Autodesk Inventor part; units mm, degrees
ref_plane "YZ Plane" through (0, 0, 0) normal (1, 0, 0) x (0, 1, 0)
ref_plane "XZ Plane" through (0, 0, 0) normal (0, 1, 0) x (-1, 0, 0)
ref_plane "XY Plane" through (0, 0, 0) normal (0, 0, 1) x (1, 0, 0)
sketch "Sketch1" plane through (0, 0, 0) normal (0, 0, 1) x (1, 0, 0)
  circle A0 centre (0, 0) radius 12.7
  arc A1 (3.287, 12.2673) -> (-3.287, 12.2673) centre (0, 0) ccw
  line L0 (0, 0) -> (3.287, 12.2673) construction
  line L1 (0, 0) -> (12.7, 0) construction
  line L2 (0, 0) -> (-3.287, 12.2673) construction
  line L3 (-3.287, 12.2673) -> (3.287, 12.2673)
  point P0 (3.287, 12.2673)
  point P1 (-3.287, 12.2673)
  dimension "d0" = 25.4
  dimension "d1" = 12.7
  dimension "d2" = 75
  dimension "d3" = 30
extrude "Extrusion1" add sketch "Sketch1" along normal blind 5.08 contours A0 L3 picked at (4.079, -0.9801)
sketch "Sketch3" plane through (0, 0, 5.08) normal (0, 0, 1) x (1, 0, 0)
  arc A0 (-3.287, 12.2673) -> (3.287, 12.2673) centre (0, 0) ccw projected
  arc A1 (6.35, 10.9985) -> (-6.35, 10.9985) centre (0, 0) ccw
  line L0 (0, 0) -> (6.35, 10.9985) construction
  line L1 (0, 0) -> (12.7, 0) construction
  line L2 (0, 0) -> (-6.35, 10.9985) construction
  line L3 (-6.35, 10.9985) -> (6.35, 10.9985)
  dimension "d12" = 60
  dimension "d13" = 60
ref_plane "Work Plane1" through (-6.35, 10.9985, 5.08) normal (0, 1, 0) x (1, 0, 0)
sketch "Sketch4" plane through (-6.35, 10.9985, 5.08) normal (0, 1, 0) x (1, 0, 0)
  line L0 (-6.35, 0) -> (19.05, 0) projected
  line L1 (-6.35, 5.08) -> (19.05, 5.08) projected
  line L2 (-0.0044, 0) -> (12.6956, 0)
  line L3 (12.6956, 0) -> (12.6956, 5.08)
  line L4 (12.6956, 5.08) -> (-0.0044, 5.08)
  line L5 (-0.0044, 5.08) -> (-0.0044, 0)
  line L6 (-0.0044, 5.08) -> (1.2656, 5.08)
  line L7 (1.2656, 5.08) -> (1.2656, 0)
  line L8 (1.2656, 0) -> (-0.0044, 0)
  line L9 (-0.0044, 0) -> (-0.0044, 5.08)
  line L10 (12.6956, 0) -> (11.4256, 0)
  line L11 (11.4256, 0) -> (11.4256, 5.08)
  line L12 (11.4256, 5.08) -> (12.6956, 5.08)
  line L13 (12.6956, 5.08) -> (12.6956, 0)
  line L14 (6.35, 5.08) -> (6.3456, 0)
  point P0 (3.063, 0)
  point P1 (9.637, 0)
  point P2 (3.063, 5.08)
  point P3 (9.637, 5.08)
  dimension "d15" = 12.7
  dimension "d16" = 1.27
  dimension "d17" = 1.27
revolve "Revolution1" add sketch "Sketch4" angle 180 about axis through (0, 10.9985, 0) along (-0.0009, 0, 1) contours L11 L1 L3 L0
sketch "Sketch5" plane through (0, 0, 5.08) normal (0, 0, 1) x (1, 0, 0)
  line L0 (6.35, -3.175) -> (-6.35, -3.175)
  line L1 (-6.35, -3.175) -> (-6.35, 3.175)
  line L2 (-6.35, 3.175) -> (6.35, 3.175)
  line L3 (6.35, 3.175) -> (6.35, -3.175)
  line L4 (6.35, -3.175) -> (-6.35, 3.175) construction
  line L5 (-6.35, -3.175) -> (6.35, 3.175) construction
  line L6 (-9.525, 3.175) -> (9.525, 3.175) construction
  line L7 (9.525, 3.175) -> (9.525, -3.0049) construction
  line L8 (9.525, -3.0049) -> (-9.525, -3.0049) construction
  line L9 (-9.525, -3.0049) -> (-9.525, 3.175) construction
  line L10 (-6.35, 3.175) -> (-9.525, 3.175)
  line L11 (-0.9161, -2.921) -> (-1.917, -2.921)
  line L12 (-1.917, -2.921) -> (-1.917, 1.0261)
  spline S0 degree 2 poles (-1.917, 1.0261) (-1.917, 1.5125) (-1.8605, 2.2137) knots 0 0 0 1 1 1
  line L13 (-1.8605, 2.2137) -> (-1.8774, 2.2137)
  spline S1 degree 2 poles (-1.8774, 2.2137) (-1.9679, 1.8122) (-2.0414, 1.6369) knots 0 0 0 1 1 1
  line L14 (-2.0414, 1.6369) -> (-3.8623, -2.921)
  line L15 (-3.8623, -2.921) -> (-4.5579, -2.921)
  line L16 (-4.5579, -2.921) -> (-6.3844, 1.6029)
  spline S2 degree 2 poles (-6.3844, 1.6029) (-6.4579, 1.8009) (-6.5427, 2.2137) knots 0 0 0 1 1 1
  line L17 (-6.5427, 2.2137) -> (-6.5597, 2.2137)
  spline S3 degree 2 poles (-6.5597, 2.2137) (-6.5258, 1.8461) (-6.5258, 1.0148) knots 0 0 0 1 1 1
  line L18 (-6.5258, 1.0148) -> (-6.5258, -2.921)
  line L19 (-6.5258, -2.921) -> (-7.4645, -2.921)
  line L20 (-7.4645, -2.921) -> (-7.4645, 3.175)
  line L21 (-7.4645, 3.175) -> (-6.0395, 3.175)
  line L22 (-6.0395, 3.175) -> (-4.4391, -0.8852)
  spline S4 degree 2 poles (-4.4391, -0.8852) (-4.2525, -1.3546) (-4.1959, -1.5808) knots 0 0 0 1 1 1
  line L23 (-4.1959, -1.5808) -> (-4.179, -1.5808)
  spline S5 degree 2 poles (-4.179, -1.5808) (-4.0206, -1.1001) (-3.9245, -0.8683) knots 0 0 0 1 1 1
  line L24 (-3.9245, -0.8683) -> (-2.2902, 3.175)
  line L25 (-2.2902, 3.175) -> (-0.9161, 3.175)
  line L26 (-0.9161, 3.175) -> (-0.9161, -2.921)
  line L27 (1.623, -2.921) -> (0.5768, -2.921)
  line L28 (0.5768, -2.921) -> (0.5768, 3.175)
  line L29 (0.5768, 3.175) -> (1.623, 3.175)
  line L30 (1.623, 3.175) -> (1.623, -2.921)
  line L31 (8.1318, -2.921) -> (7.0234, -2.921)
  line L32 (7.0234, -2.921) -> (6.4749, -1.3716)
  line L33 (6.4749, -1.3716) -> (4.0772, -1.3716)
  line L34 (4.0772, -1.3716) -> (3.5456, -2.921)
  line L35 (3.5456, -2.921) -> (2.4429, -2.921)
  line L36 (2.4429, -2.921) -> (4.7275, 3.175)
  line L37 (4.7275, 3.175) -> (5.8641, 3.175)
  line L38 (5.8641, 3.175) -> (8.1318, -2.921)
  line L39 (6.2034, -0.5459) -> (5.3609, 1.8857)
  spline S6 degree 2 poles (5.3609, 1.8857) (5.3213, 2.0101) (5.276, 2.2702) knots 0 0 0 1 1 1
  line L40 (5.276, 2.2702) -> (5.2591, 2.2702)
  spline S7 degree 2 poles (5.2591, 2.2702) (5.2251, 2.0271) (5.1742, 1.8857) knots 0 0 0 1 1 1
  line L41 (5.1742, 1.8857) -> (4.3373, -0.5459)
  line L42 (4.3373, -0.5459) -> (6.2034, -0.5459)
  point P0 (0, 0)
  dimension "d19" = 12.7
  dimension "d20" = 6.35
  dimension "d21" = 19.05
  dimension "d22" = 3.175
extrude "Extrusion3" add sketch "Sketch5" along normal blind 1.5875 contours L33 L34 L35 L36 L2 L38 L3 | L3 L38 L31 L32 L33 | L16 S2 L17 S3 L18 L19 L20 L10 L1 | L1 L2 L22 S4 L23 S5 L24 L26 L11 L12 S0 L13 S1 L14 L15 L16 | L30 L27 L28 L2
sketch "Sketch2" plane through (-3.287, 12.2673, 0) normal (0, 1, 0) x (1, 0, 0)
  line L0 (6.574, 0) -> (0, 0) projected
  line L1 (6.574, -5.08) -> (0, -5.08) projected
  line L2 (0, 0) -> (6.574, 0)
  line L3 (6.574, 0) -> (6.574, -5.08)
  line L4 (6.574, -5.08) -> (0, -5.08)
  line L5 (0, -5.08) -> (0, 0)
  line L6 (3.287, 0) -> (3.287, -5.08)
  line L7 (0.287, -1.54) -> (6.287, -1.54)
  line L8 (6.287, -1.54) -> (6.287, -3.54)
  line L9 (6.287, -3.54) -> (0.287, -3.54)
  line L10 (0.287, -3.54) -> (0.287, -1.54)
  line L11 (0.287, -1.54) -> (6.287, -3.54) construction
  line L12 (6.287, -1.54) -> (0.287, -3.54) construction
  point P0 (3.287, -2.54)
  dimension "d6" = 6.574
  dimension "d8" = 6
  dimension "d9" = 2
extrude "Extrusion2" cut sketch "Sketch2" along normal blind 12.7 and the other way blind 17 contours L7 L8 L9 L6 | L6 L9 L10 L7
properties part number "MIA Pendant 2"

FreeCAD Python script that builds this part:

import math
import FreeCAD as App
import Part
import Sketcher
Q = App.Units.Quantity


def add_polygon(sketch, points):
    """Adds a closed chain of lines whose ends are joined by coincident constraints."""
    first, n = sketch.GeometryCount, len(points)
    for a, b in zip(points, points[1:] + points[:1]):
        sketch.addGeometry(Part.LineSegment(App.Vector(*a, 0), App.Vector(*b, 0)), False)
    for i in range(n):
        sketch.addConstraint(Sketcher.Constraint("Coincident", first + i, 2, first + (i + 1) % n, 1))

doc = App.newDocument("Part")
body = doc.addObject("PartDesign::Body", "Body")

sketch1 = body.newObject("Sketcher::SketchObject", "Sketch")
sketch1.AttachmentSupport = (doc.getObject("XY_Plane"), [""])
sketch1.MapMode = "FlatFace"
sketch1.addGeometry(Part.ArcOfCircle(Part.Circle(App.Vector(0, 0, 0), App.Vector(0, 0, 1), 13), math.radians(105), math.radians(435)), False)
sketch1.addGeometry(Part.LineSegment(App.Vector(-3, 12, 0), App.Vector(3, 12, 0)), False)
sketch1.addConstraint(Sketcher.Constraint("Coincident", 0, 1, 1, 1))
sketch1.addConstraint(Sketcher.Constraint("Coincident", 1, 2, 0, 2))
sketch1.addConstraint(Sketcher.Constraint("Horizontal", 1))
sketch1.addConstraint(Sketcher.Constraint("Coincident", 0, 3, -1, 1))
sketch1.addConstraint(Sketcher.Constraint("Radius", 0, Q("0.5 in")))
sketch1.addConstraint(Sketcher.Constraint("DistanceX", 1, 1, 1, 2, Q("6.574 mm")))
pad1 = body.newObject("PartDesign::Pad", "Pad")
pad1.Profile = sketch1
pad1.Length = Q("0.2 in")

sketch2 = body.newObject("Sketcher::SketchObject", "Sketch001")
sketch2.AttachmentSupport = (doc.getObject("XZ_Plane"), [""])
sketch2.MapMode = "FlatFace"
sketch2.AttachmentOffset = App.Placement(App.Vector(0, 0, -0.4330118 * 25.4), App.Rotation())
add_polygon(sketch2, [(5.1, 0), (5.1, 5.1), (6.3, 5.1), (6.3, 0)])
sketch2.addGeometry(Part.LineSegment(App.Vector(0, 0, 0), App.Vector(0, 5.1, 0)), True)
sketch2.addConstraint(Sketcher.Constraint("Vertical", 0))
sketch2.addConstraint(Sketcher.Constraint("Horizontal", 1))
sketch2.addConstraint(Sketcher.Constraint("Vertical", 2))
sketch2.addConstraint(Sketcher.Constraint("Horizontal", 3))
sketch2.addConstraint(Sketcher.Constraint("PointOnObject", 2, 2, -1))
sketch2.addConstraint(Sketcher.Constraint("PointOnObject", 4, 1, -2))
sketch2.addConstraint(Sketcher.Constraint("DistanceX", 1, 1, 1, 2, Q("0.05 in")))
sketch2.addConstraint(Sketcher.Constraint("DistanceY", 0, 1, 0, 2, Q("0.2 in")))
sketch2.addConstraint(Sketcher.Constraint("DistanceX", 4, 2, 0, 2, Q("0.2 in")))
sketch2.addConstraint(Sketcher.Constraint("Distance", 4, Q("5.0811 mm")))
sketch2.addConstraint(Sketcher.Constraint("DistanceX", -1, 1, 0, 2, Q("5.0756 mm")))
sketch2.addConstraint(Sketcher.Constraint("DistanceY", 4, 1, -1, 1, Q("0.0057 mm")))
revolution = body.newObject("PartDesign::Revolution", "Revolution")
revolution.Profile = sketch2
revolution.ReferenceAxis = (sketch2, ["Axis0"])
revolution.Angle = 180

sketch3 = body.newObject("Sketcher::SketchObject", "Sketch002")
sketch3.AttachmentSupport = (doc.getObject("XY_Plane"), [""])
sketch3.MapMode = "FlatFace"
sketch3.AttachmentOffset = App.Placement(App.Vector(0, 0, 0.2 * 25.4), App.Rotation())
add_polygon(sketch3, [(4.0772, -1.3716), (6.4749, -1.3716), (7.0234, -2.921), (8.1318, -2.921), (5.8641, 3.175), (4.7275, 3.175), (2.4429, -2.921), (3.5456, -2.921)])
sketch3.addGeometry(Part.LineSegment(App.Vector(5.3609, 1.8857, 0), App.Vector(6.2034, -0.5459, 0)), False)
sketch3.addGeometry(Part.LineSegment(App.Vector(6.2034, -0.5459, 0), App.Vector(4.3373, -0.5459, 0)), False)
sketch3.addGeometry(Part.LineSegment(App.Vector(4.3373, -0.5459, 0), App.Vector(5.1742, 1.8857, 0)), False)
sketch3.addGeometry(Part.BSplineCurve([App.Vector(5.2591, 2.2702, 0), App.Vector(5.2251, 2.0271, 0), App.Vector(5.1742, 1.8857, 0)], [3, 3], [0, 1], False, 2, [1, 1, 1], False), False)
sketch3.addGeometry(Part.LineSegment(App.Vector(5.2591, 2.2702, 0), App.Vector(5.276, 2.2702, 0)), False)
sketch3.addGeometry(Part.BSplineCurve([App.Vector(5.3609, 1.8857, 0), App.Vector(5.3213, 2.0101, 0), App.Vector(5.276, 2.2702, 0)], [3, 3], [0, 1], False, 2, [1, 1, 1], False), False)
sketch3.addGeometry(Part.LineSegment(App.Vector(-6.3844, 1.6029, 0), App.Vector(-4.5579, -2.921, 0)), False)
sketch3.addGeometry(Part.LineSegment(App.Vector(-4.5579, -2.921, 0), App.Vector(-3.8623, -2.921, 0)), False)
sketch3.addGeometry(Part.LineSegment(App.Vector(-3.8623, -2.921, 0), App.Vector(-2.0414, 1.6369, 0)), False)
sketch3.addGeometry(Part.BSplineCurve([App.Vector(-1.8774, 2.2137, 0), App.Vector(-1.9679, 1.8122, 0), App.Vector(-2.0414, 1.6369, 0)], [3, 3], [0, 1], False, 2, [1, 1, 1], False), False)
sketch3.addGeometry(Part.LineSegment(App.Vector(-1.8774, 2.2137, 0), App.Vector(-1.8605, 2.2137, 0)), False)
sketch3.addGeometry(Part.BSplineCurve([App.Vector(-1.917, 1.0261, 0), App.Vector(-1.917, 1.5125, 0), App.Vector(-1.8605, 2.2137, 0)], [3, 3], [0, 1], False, 2, [1, 1, 1], False), False)
sketch3.addGeometry(Part.LineSegment(App.Vector(-1.917, 1.0261, 0), App.Vector(-1.917, -2.921, 0)), False)
sketch3.addGeometry(Part.LineSegment(App.Vector(-1.917, -2.921, 0), App.Vector(-0.9161, -2.921, 0)), False)
sketch3.addGeometry(Part.LineSegment(App.Vector(-0.9161, -2.921, 0), App.Vector(-0.9161, 3.175, 0)), False)
sketch3.addGeometry(Part.LineSegment(App.Vector(-0.9161, 3.175, 0), App.Vector(-2.2902, 3.175, 0)), False)
sketch3.addGeometry(Part.LineSegment(App.Vector(-2.2902, 3.175, 0), App.Vector(-3.9245, -0.8683, 0)), False)
sketch3.addGeometry(Part.BSplineCurve([App.Vector(-4.179, -1.5808, 0), App.Vector(-4.0206, -1.1001, 0), App.Vector(-3.9245, -0.8683, 0)], [3, 3], [0, 1], False, 2, [1, 1, 1], False), False)
sketch3.addGeometry(Part.LineSegment(App.Vector(-4.179, -1.5808, 0), App.Vector(-4.1959, -1.5808, 0)), False)
sketch3.addGeometry(Part.BSplineCurve([App.Vector(-4.4391, -0.8852, 0), App.Vector(-4.2525, -1.3546, 0), App.Vector(-4.1959, -1.5808, 0)], [3, 3], [0, 1], False, 2, [1, 1, 1], False), False)
sketch3.addGeometry(Part.LineSegment(App.Vector(-4.4391, -0.8852, 0), App.Vector(-6.0395, 3.175, 0)), False)
sketch3.addGeometry(Part.LineSegment(App.Vector(-6.0395, 3.175, 0), App.Vector(-7.4645, 3.175, 0)), False)
sketch3.addGeometry(Part.LineSegment(App.Vector(-7.4645, 3.175, 0), App.Vector(-7.4645, -2.921, 0)), False)
sketch3.addGeometry(Part.LineSegment(App.Vector(-7.4645, -2.921, 0), App.Vector(-6.5258, -2.921, 0)), False)
sketch3.addGeometry(Part.LineSegment(App.Vector(-6.5258, -2.921, 0), App.Vector(-6.5258, 1.0148, 0)), False)
sketch3.addGeometry(Part.BSplineCurve([App.Vector(-6.5597, 2.2137, 0), App.Vector(-6.5258, 1.8461, 0), App.Vector(-6.5258, 1.0148, 0)], [3, 3], [0, 1], False, 2, [1, 1, 1], False), False)
sketch3.addGeometry(Part.LineSegment(App.Vector(-6.5597, 2.2137, 0), App.Vector(-6.5427, 2.2137, 0)), False)
sketch3.addGeometry(Part.BSplineCurve([App.Vector(-6.3844, 1.6029, 0), App.Vector(-6.4579, 1.8009, 0), App.Vector(-6.5427, 2.2137, 0)], [3, 3], [0, 1], False, 2, [1, 1, 1], False), False)
add_polygon(sketch3, [(1.623, -2.921), (1.623, 3.175), (0.5768, 3.175), (0.5768, -2.921)])
sketch3.addConstraint(Sketcher.Constraint("Block", 11))
sketch3.addConstraint(Sketcher.Constraint("Block", 13))
sketch3.addConstraint(Sketcher.Constraint("Block", 17))
sketch3.addConstraint(Sketcher.Constraint("Block", 19))
sketch3.addConstraint(Sketcher.Constraint("Block", 25))
sketch3.addConstraint(Sketcher.Constraint("Block", 27))
sketch3.addConstraint(Sketcher.Constraint("Block", 33))
sketch3.addConstraint(Sketcher.Constraint("Block", 35))
sketch3.addConstraint(Sketcher.Constraint("Coincident", 8, 2, 9, 1))
sketch3.addConstraint(Sketcher.Constraint("Coincident", 9, 2, 10, 1))
sketch3.addConstraint(Sketcher.Constraint("Coincident", 10, 2, 11, 2))
sketch3.addConstraint(Sketcher.Constraint("Coincident", 11, 1, 12, 1))
sketch3.addConstraint(Sketcher.Constraint("Coincident", 12, 2, 13, 2))
sketch3.addConstraint(Sketcher.Constraint("Coincident", 13, 1, 8, 1))
sketch3.addConstraint(Sketcher.Constraint("Coincident", 14, 2, 15, 1))
sketch3.addConstraint(Sketcher.Constraint("Coincident", 15, 2, 16, 1))
sketch3.addConstraint(Sketcher.Constraint("Coincident", 16, 2, 17, 2))
sketch3.addConstraint(Sketcher.Constraint("Coincident", 17, 1, 18, 1))
sketch3.addConstraint(Sketcher.Constraint("Coincident", 18, 2, 19, 2))
sketch3.addConstraint(Sketcher.Constraint("Coincident", 19, 1, 20, 1))
sketch3.addConstraint(Sketcher.Constraint("Coincident", 20, 2, 21, 1))
sketch3.addConstraint(Sketcher.Constraint("Coincident", 21, 2, 22, 1))
sketch3.addConstraint(Sketcher.Constraint("Coincident", 22, 2, 23, 1))
sketch3.addConstraint(Sketcher.Constraint("Coincident", 23, 2, 24, 1))
sketch3.addConstraint(Sketcher.Constraint("Coincident", 24, 2, 25, 2))
sketch3.addConstraint(Sketcher.Constraint("Coincident", 25, 1, 26, 1))
sketch3.addConstraint(Sketcher.Constraint("Coincident", 26, 2, 27, 2))
sketch3.addConstraint(Sketcher.Constraint("Coincident", 27, 1, 28, 1))
sketch3.addConstraint(Sketcher.Constraint("Coincident", 28, 2, 29, 1))
sketch3.addConstraint(Sketcher.Constraint("Coincident", 29, 2, 30, 1))
sketch3.addConstraint(Sketcher.Constraint("Coincident", 30, 2, 31, 1))
sketch3.addConstraint(Sketcher.Constraint("Coincident", 31, 2, 32, 1))
sketch3.addConstraint(Sketcher.Constraint("Coincident", 32, 2, 33, 2))
sketch3.addConstraint(Sketcher.Constraint("Coincident", 33, 1, 34, 1))
sketch3.addConstraint(Sketcher.Constraint("Coincident", 34, 2, 35, 2))
sketch3.addConstraint(Sketcher.Constraint("Coincident", 35, 1, 14, 1))
sketch3.addConstraint(Sketcher.Constraint("Horizontal", 0))
sketch3.addConstraint(Sketcher.Constraint("Horizontal", 2))
sketch3.addConstraint(Sketcher.Constraint("Horizontal", 4))
sketch3.addConstraint(Sketcher.Constraint("Horizontal", 6))
sketch3.addConstraint(Sketcher.Constraint("Horizontal", 9))
sketch3.addConstraint(Sketcher.Constraint("Horizontal", 15))
sketch3.addConstraint(Sketcher.Constraint("Vertical", 20))
sketch3.addConstraint(Sketcher.Constraint("Horizontal", 21))
sketch3.addConstraint(Sketcher.Constraint("Vertical", 22))
sketch3.addConstraint(Sketcher.Constraint("Horizontal", 23))
sketch3.addConstraint(Sketcher.Constraint("Horizontal", 29))
sketch3.addConstraint(Sketcher.Constraint("Vertical", 30))
sketch3.addConstraint(Sketcher.Constraint("Horizontal", 31))
sketch3.addConstraint(Sketcher.Constraint("Vertical", 32))
sketch3.addConstraint(Sketcher.Constraint("Vertical", 36))
sketch3.addConstraint(Sketcher.Constraint("Horizontal", 37))
sketch3.addConstraint(Sketcher.Constraint("Vertical", 38))
sketch3.addConstraint(Sketcher.Constraint("Horizontal", 39))
sketch3.addConstraint(Sketcher.Constraint("DistanceY", -1, 1, 3, 2, Q("0.125 in")))
sketch3.addConstraint(Sketcher.Constraint("DistanceY", -1, 1, 22, 2, Q("0.125 in")))
sketch3.addConstraint(Sketcher.Constraint("DistanceY", -1, 1, 28, 2, Q("0.125 in")))
sketch3.addConstraint(Sketcher.Constraint("DistanceY", -1, 1, 36, 2, Q("0.125 in")))
sketch3.addConstraint(Sketcher.Constraint("DistanceY", 22, 1, 22, 2, Q("0.24 in")))
sketch3.addConstraint(Sketcher.Constraint("DistanceY", 30, 2, 30, 1, Q("0.24 in")))
sketch3.addConstraint(Sketcher.Constraint("DistanceY", 36, 1, 36, 2, Q("0.24 in")))
sketch3.addConstraint(Sketcher.Constraint("DistanceY", 1, 2, 3, 2, Q("0.24 in")))
sketch3.addConstraint(Sketcher.Constraint("DistanceY", 5, 2, 4, 2, Q("0.24 in")))
sketch3.addConstraint(Sketcher.Constraint("DistanceX", 0, 1, 0, 2, Q("0.0944 in")))
sketch3.addConstraint(Sketcher.Constraint("DistanceX", 21, 1, 21, 2, Q("0.0394 in")))
sketch3.addConstraint(Sketcher.Constraint("DistanceX", 23, 2, 23, 1, Q("0.0541 in")))
sketch3.addConstraint(Sketcher.Constraint("DistanceX", 29, 2, 29, 1, Q("0.0561 in")))
sketch3.addConstraint(Sketcher.Constraint("DistanceX", 37, 2, 37, 1, Q("0.0412 in")))
sketch3.addConstraint(Sketcher.Constraint("DistanceY", 0, 2, -1, 1, Q("0.054 in")))
sketch3.addConstraint(Sketcher.Constraint("DistanceY", 14, 2, -1, 1, Q("0.115 in")))
sketch3.addConstraint(Sketcher.Constraint("DistanceX", 7, 2, 1, 2, Q("0.116 in")))
sketch3.addConstraint(Sketcher.Constraint("DistanceX", 15, 2, 21, 2, Q("0.116 in")))
sketch3.addConstraint(Sketcher.Constraint("Distance", 5, Q("0.2563 in")))
sketch3.addConstraint(Sketcher.Constraint("Distance", 7, Q("0.0645 in")))
sketch3.addConstraint(Sketcher.Constraint("DistanceX", 2, 1, 2, 2, Q("1.1084 mm")))
sketch3.addConstraint(Sketcher.Constraint("DistanceX", 4, 2, 4, 1, Q("1.1366 mm")))
sketch3.addConstraint(Sketcher.Constraint("DistanceX", 6, 1, 6, 2, Q("1.1027 mm")))
sketch3.addConstraint(Sketcher.Constraint("DistanceX", 9, 2, 9, 1, Q("1.866 mm")))
sketch3.addConstraint(Sketcher.Constraint("DistanceX", 15, 1, 15, 2, Q("0.6956 mm")))
sketch3.addConstraint(Sketcher.Constraint("DistanceX", 31, 1, 31, 2, Q("0.9387 mm")))
sketch3.addConstraint(Sketcher.Constraint("DistanceX", -1, 1, 1, 2, Q("0.2765 in")))
sketch3.addConstraint(Sketcher.Constraint("DistanceY", 8, 2, -1, 1, Q("0.0215 in")))
sketch3.addConstraint(Sketcher.Constraint("DistanceX", -1, 1, 36, 2, Q("0.0639 in")))
sketch3.addConstraint(Sketcher.Constraint("DistanceX", 8, 2, 0, 2, Q("0.0107 in")))
pad2 = body.newObject("PartDesign::Pad", "Pad001")
pad2.Profile = sketch3
pad2.Length = Q("0.0625 in")

sketch4 = body.newObject("Sketcher::SketchObject", "Sketch003")
sketch4.AttachmentSupport = (doc.getObject("XZ_Plane"), [""])
sketch4.MapMode = "FlatFace"
sketch4.AttachmentOffset = App.Placement(App.Vector(0, 0, -12.2673), App.Rotation())
add_polygon(sketch4, [(3, 1.5), (-3, 1.5), (-3, 3.5), (3, 3.5)])
sketch4.addConstraint(Sketcher.Constraint("Horizontal", 0))
sketch4.addConstraint(Sketcher.Constraint("Vertical", 1))
sketch4.addConstraint(Sketcher.Constraint("Horizontal", 2))
sketch4.addConstraint(Sketcher.Constraint("Vertical", 3))
sketch4.addConstraint(Sketcher.Constraint("DistanceX", 0, 2, 0, 1, Q("6 mm")))
sketch4.addConstraint(Sketcher.Constraint("DistanceY", 1, 1, 1, 2, Q("2 mm")))
sketch4.addConstraint(Sketcher.Constraint("DistanceX", 0, 2, -1, 1, Q("0.1181 in")))
sketch4.addConstraint(Sketcher.Constraint("DistanceY", -1, 1, 0, 2, Q("1.54 mm")))
pocket1 = body.newObject("PartDesign::Pocket", "Pocket")
pocket1.Profile = sketch4
pocket1.Type = "TwoLengths"
pocket1.Length = Q("0.5 in")
pocket1.Length2 = Q("0.6692913 in")

doc.recompute()
